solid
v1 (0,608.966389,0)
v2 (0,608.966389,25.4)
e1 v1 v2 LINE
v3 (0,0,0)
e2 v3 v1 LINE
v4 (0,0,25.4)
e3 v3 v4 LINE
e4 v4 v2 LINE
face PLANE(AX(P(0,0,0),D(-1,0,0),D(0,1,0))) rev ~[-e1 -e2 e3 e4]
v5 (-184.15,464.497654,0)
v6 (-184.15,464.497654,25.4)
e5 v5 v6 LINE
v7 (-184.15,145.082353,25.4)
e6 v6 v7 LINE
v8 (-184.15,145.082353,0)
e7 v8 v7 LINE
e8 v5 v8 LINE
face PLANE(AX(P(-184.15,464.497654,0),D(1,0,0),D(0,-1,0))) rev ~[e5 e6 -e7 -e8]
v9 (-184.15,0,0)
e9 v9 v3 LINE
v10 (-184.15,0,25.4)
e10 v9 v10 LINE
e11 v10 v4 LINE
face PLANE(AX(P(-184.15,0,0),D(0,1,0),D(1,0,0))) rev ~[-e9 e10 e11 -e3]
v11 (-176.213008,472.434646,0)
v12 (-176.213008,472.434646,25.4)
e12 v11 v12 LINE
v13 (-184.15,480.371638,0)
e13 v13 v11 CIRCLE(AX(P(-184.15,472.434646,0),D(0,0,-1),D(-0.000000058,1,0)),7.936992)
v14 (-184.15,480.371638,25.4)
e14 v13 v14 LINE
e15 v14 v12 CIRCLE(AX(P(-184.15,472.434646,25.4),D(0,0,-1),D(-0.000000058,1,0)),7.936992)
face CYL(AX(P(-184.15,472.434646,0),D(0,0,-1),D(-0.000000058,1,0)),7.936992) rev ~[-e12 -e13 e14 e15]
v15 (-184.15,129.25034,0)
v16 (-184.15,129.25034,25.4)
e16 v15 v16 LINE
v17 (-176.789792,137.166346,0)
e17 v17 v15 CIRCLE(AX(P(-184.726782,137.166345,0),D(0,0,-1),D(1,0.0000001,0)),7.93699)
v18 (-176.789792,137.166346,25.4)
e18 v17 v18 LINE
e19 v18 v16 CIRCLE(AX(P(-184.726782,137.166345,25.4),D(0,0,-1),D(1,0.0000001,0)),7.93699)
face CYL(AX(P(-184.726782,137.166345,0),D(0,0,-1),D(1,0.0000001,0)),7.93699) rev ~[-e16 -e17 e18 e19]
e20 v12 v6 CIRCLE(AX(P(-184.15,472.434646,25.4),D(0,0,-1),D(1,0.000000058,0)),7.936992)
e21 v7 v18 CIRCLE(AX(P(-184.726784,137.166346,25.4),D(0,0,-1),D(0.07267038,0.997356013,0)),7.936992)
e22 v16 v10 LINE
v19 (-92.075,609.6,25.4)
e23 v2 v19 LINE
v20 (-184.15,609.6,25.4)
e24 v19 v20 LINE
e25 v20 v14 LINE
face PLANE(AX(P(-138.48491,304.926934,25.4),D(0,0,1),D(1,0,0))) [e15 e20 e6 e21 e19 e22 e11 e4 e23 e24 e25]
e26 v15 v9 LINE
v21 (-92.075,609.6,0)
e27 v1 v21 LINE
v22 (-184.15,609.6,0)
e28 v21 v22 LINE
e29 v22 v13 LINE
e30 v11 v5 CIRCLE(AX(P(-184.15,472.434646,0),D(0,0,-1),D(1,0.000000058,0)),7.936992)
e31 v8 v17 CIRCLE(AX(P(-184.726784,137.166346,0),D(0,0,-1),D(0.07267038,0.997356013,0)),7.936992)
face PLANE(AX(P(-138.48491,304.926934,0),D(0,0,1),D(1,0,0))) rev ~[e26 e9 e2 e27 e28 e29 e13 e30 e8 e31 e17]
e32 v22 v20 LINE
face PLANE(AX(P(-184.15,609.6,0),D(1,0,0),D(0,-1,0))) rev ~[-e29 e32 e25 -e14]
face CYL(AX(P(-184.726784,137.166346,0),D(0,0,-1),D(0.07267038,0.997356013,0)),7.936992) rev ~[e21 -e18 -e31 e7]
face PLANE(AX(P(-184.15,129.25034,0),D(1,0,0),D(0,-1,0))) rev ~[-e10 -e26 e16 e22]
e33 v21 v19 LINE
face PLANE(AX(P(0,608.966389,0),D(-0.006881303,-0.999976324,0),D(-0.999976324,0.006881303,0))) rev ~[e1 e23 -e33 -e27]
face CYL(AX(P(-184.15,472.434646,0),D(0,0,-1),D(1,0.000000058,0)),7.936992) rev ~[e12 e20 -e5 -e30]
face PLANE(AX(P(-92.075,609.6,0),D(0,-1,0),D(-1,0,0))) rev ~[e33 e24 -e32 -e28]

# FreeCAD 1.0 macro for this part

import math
import FreeCAD as App
import Part
import Sketcher

V = App.Vector
Q = App.Units.Quantity

doc = App.newDocument("Part")
params = doc.addObject("Spreadsheet::Sheet", "Params")
for row, (alias, value) in enumerate([
    ("sketch1_width", "7.25 in"),
    ("sketch1_width2", "3.625 in"),
    ("pad1_length", "1 in"),
], start=1):
    params.set(f"A{row}", alias)
    params.set(f"B{row}", "=" + value)
    params.setAlias(f"B{row}", alias)

body = doc.addObject("PartDesign::Body", "Body")

sketch1 = body.newObject("Sketcher::SketchObject", "Sketch")
sketch1.AttachmentSupport = (doc.getObject("XY_Plane"), [""])
sketch1.MapMode = "FlatFace"
sketch1.addGeometry([
    Part.LineSegment(V(-184, 0, 0), V(0, 0, 0)),
    Part.LineSegment(V(0, 0, 0), V(0, 609, 0)),
    Part.LineSegment(V(0, 609, 0), V(-92, 610, 0)),
    Part.LineSegment(V(-92, 610, 0), V(-184, 610, 0)),
    Part.LineSegment(V(-184, 610, 0), V(-184, 480, 0)),
    Part.ArcOfCircle(Part.Circle(V(-184, 472, 0), V(0, 0, 1), 8), math.radians(0), math.radians(90)),
    Part.ArcOfCircle(Part.Circle(V(-184, 472, 0), V(0, 0, 1), 8), math.radians(-90), math.radians(0)),
    Part.LineSegment(V(-184, 464, 0), V(-184, 145, 0)),
    Part.ArcOfCircle(Part.Circle(V(-185, 137, 0), V(0, 0, 1), 8), math.radians(0), math.radians(86)),
    Part.ArcOfCircle(Part.Circle(V(-185, 137, 0), V(0, 0, 1), 8), math.radians(-86), math.radians(0)),
    Part.LineSegment(V(-184, 129, 0), V(-184, 0, 0)),
], False)
sketch1.addConstraint([
    Sketcher.Constraint("Coincident", 0, 2, 1, 1),
    Sketcher.Constraint("Coincident", 1, 2, 2, 1),
    Sketcher.Constraint("Coincident", 2, 2, 3, 1),
    Sketcher.Constraint("Coincident", 3, 2, 4, 1),
    Sketcher.Constraint("Coincident", 4, 2, 5, 2),
    Sketcher.Constraint("Tangent", 5, 1, 6, 2),
    Sketcher.Constraint("Coincident", 6, 1, 7, 1),
    Sketcher.Constraint("Coincident", 7, 2, 8, 2),
    Sketcher.Constraint("Tangent", 8, 1, 9, 2),
    Sketcher.Constraint("Coincident", 9, 1, 10, 1),
    Sketcher.Constraint("Coincident", 10, 2, 0, 1),
    Sketcher.Constraint("Horizontal", 0),
    Sketcher.Constraint("Vertical", 1),
    Sketcher.Constraint("Horizontal", 3),
    Sketcher.Constraint("Vertical", 4),
    Sketcher.Constraint("Vertical", 7),
    Sketcher.Constraint("Vertical", 10),
    Sketcher.Constraint("Coincident", 0, 2, -1, 1),
    Sketcher.Constraint("Equal", 5, 6),
    Sketcher.Constraint("Equal", 6, 8),
    Sketcher.Constraint("Equal", 8, 9),
    Sketcher.Constraint("Horizontal", 6, 3, 5, 1),
    Sketcher.Constraint("Horizontal", 9, 3, 8, 1),
    Sketcher.Constraint("Vertical", 6, 3, 3, 2),
    Sketcher.Constraint("Vertical", 4, 2, 6, 1),
    Sketcher.Constraint("Vertical", 7, 2, 9, 1),
    Sketcher.Constraint("DistanceY", -1, 1, 2, 2, Q("24 in")),
    Sketcher.Constraint("DistanceX", 0, 1, 0, 2, Q("7.25 in")),
    Sketcher.Constraint("DistanceX", 3, 2, 3, 1, Q("3.625 in")),
    Sketcher.Constraint("Radius", 5, 7.936992),
    Sketcher.Constraint("DistanceY", 7, 2, 7, 1, 319.415301),
    Sketcher.Constraint("DistanceY", 1, 1, 1, 2, 608.966389),
    Sketcher.Constraint("DistanceY", 4, 2, 4, 1, 129.228362),
    Sketcher.Constraint("DistanceY", 10, 2, 10, 1, 129.25034),
])
sketch1.setExpression("Constraints[27]", "Params.sketch1_width")
sketch1.setExpression("Constraints[28]", "Params.sketch1_width2")
pad1 = body.newObject("PartDesign::Pad", "Pad")
pad1.Profile = sketch1
pad1.setExpression("Length", "Params.pad1_length")

doc.recompute()
